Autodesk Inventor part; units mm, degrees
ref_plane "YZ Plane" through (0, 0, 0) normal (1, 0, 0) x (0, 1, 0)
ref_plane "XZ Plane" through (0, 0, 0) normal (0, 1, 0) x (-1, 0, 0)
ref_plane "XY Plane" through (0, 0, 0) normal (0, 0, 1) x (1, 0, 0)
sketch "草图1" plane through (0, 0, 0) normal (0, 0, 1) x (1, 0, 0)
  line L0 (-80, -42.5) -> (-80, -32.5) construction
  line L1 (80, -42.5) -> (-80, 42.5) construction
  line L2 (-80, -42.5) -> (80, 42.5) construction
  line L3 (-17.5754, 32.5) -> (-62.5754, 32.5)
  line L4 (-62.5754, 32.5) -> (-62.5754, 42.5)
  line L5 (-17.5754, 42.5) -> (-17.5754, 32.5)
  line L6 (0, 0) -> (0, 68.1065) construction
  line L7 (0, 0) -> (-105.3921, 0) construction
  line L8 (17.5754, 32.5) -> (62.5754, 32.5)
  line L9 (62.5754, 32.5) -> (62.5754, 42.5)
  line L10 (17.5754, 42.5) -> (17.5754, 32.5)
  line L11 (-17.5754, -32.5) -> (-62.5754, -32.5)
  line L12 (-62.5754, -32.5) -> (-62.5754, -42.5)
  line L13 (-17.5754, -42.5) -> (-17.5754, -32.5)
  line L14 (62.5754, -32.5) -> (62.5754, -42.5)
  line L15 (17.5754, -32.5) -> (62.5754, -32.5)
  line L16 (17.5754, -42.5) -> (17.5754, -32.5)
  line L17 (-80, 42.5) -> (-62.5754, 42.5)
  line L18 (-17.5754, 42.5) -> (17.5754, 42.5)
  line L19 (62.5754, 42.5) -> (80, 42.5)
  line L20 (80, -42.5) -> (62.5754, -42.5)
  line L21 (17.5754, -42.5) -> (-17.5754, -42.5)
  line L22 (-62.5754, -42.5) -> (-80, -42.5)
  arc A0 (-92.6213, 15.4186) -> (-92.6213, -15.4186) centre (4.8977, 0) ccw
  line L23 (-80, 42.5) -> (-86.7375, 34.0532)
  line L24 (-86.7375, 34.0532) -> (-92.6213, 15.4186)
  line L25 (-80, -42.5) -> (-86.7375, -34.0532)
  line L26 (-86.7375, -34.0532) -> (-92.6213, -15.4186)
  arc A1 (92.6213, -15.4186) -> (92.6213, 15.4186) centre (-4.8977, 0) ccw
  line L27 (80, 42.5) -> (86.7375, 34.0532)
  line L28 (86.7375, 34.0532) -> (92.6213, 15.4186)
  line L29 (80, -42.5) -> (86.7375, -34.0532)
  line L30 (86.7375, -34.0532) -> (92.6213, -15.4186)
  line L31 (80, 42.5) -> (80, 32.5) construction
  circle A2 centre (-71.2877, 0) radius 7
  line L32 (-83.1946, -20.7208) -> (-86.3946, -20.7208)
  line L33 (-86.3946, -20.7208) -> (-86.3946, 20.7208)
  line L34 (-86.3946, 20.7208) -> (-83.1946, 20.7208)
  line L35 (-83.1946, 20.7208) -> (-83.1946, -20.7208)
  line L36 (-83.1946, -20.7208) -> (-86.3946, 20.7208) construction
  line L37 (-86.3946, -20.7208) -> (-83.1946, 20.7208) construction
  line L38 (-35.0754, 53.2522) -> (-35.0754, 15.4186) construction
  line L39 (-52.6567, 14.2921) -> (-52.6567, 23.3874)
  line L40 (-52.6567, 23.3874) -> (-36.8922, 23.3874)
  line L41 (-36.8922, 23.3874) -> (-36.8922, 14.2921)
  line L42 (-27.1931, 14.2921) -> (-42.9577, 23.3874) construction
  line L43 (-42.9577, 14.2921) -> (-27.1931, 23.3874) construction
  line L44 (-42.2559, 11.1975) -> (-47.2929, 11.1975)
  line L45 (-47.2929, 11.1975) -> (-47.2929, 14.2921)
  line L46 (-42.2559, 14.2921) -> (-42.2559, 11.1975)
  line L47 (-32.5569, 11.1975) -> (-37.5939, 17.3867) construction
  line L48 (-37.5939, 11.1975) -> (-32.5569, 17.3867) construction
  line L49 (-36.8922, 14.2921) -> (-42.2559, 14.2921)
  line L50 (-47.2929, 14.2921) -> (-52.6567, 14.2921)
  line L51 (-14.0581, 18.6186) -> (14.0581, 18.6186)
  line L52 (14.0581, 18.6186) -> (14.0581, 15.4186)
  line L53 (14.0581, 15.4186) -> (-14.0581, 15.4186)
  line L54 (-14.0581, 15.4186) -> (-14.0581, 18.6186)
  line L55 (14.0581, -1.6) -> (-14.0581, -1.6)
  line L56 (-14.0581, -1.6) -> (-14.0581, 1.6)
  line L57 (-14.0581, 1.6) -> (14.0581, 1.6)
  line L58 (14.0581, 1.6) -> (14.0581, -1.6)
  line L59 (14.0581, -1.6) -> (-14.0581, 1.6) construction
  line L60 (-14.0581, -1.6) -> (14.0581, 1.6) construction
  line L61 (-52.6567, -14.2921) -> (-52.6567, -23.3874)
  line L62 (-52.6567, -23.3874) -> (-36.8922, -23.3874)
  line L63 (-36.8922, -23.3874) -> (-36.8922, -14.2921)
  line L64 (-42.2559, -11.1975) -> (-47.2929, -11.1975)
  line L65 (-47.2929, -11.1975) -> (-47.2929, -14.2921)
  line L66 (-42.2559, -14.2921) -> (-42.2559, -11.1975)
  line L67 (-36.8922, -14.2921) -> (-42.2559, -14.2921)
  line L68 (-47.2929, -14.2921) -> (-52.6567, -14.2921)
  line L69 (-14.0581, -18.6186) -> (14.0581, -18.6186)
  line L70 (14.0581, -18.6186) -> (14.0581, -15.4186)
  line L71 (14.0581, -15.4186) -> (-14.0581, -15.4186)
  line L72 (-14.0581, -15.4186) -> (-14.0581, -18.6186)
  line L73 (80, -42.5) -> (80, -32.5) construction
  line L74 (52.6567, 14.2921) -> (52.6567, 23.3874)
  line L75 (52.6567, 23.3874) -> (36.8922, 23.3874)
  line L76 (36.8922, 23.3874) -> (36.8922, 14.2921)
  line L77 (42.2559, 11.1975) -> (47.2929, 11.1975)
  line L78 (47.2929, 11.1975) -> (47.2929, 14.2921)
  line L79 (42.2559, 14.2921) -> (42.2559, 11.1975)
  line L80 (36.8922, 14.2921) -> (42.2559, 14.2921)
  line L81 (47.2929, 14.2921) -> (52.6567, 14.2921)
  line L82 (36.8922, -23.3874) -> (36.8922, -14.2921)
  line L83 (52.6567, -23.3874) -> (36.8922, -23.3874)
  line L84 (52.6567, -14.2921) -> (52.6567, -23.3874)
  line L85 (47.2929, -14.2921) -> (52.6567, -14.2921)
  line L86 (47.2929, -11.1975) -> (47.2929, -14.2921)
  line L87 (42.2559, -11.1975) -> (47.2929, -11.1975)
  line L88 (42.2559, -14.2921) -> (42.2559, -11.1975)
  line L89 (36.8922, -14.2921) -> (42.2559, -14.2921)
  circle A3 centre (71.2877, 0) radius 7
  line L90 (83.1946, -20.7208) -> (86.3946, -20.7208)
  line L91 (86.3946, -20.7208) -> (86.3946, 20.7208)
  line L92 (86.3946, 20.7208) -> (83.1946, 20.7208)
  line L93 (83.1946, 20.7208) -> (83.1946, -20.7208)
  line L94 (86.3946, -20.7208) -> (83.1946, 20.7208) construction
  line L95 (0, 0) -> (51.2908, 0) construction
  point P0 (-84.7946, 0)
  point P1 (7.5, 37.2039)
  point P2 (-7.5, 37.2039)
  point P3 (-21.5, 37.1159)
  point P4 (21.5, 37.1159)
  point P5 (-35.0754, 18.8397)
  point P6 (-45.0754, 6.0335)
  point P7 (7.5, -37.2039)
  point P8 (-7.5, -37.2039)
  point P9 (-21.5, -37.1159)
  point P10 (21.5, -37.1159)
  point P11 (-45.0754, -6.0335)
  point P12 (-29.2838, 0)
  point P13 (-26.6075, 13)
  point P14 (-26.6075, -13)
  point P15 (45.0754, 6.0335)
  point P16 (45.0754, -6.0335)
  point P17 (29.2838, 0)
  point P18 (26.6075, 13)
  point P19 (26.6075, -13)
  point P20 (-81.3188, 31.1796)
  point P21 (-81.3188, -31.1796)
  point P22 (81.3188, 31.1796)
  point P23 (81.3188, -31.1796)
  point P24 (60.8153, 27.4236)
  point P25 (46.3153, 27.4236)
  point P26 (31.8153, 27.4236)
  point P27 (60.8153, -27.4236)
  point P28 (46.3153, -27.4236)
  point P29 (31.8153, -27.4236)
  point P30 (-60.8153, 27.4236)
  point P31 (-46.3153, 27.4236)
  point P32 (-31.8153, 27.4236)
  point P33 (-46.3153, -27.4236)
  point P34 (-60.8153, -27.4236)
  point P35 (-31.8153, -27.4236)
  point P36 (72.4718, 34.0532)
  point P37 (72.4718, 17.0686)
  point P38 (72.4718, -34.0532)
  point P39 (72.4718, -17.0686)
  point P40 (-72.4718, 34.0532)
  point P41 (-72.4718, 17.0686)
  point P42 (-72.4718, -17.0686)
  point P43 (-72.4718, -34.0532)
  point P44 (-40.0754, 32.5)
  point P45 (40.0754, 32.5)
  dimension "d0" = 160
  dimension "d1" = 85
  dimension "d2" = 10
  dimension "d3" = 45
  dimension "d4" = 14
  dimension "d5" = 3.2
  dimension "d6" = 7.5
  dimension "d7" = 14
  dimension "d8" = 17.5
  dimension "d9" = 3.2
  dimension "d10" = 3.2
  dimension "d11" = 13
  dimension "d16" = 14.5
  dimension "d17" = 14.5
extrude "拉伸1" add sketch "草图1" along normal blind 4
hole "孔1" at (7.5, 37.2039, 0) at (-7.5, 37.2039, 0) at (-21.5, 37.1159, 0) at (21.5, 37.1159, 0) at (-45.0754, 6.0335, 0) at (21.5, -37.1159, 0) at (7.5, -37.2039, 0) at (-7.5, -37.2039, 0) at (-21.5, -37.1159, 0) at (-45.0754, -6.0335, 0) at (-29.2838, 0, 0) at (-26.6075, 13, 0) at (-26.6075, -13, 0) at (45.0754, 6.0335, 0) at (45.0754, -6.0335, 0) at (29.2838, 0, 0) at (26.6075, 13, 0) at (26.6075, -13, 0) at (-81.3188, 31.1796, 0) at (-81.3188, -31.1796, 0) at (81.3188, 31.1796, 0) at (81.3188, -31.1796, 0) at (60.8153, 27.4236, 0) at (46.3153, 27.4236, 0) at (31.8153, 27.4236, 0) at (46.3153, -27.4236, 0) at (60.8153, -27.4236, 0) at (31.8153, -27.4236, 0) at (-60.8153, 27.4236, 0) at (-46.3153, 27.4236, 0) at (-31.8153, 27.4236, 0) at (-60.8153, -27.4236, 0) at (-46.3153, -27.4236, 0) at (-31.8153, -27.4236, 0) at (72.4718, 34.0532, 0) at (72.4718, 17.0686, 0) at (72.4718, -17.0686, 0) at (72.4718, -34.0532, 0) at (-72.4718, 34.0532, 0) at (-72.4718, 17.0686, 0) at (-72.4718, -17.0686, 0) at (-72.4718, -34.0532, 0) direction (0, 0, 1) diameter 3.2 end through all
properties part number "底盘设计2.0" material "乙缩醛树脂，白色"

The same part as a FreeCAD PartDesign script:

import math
import FreeCAD as App
import Part
import Sketcher


def add_polygon(sketch, points):
    """Adds a closed chain of lines whose ends are joined by coincident constraints."""
    first, n = sketch.GeometryCount, len(points)
    for a, b in zip(points, points[1:] + points[:1]):
        sketch.addGeometry(Part.LineSegment(App.Vector(*a, 0), App.Vector(*b, 0)), False)
    for i in range(n):
        sketch.addConstraint(Sketcher.Constraint("Coincident", first + i, 2, first + (i + 1) % n, 1))

doc = App.newDocument("Part")
body = doc.addObject("PartDesign::Body", "Body")

sketch1 = doc.addObject("Sketcher::SketchObject", "Sketch")
body.addObject(sketch1)
sketch1.AttachmentSupport = (doc.XY_Plane, [""])
sketch1.MapMode = "FlatFace"
sketch1.addGeometry(Part.LineSegment(App.Vector(-17.6, 42.5, 0), App.Vector(-17.6, 32.5, 0)), False)
sketch1.addGeometry(Part.LineSegment(App.Vector(-17.6, 32.5, 0), App.Vector(-62.6, 32.5, 0)), False)
sketch1.addGeometry(Part.LineSegment(App.Vector(-62.6, 32.5, 0), App.Vector(-62.6, 42.5, 0)), False)
sketch1.addGeometry(Part.LineSegment(App.Vector(-62.6, 42.5, 0), App.Vector(-80, 42.5, 0)), False)
sketch1.addGeometry(Part.LineSegment(App.Vector(-80, 42.5, 0), App.Vector(-86.7, 34.1, 0)), False)
sketch1.addGeometry(Part.LineSegment(App.Vector(-86.7, 34.1, 0), App.Vector(-92.6, 15.4, 0)), False)
sketch1.addGeometry(Part.ArcOfCircle(Part.Circle(App.Vector(4.9, 0, 0), App.Vector(0, 0, 1), 98.7), math.radians(171.02), math.radians(188.98)), False)
sketch1.addGeometry(Part.LineSegment(App.Vector(-92.6, -15.4, 0), App.Vector(-86.7, -34.1, 0)), False)
sketch1.addGeometry(Part.LineSegment(App.Vector(-86.7, -34.1, 0), App.Vector(-80, -42.5, 0)), False)
sketch1.addGeometry(Part.LineSegment(App.Vector(-80, -42.5, 0), App.Vector(-62.6, -42.5, 0)), False)
sketch1.addGeometry(Part.LineSegment(App.Vector(-62.6, -42.5, 0), App.Vector(-62.6, -32.5, 0)), False)
sketch1.addGeometry(Part.LineSegment(App.Vector(-62.6, -32.5, 0), App.Vector(-17.6, -32.5, 0)), False)
sketch1.addGeometry(Part.LineSegment(App.Vector(-17.6, -32.5, 0), App.Vector(-17.6, -42.5, 0)), False)
sketch1.addGeometry(Part.LineSegment(App.Vector(-17.6, -42.5, 0), App.Vector(17.6, -42.5, 0)), False)
sketch1.addGeometry(Part.LineSegment(App.Vector(17.6, -42.5, 0), App.Vector(17.6, -32.5, 0)), False)
sketch1.addGeometry(Part.LineSegment(App.Vector(17.6, -32.5, 0), App.Vector(62.6, -32.5, 0)), False)
sketch1.addGeometry(Part.LineSegment(App.Vector(62.6, -32.5, 0), App.Vector(62.6, -42.5, 0)), False)
sketch1.addGeometry(Part.LineSegment(App.Vector(62.6, -42.5, 0), App.Vector(80, -42.5, 0)), False)
sketch1.addGeometry(Part.LineSegment(App.Vector(80, -42.5, 0), App.Vector(86.7, -34.1, 0)), False)
sketch1.addGeometry(Part.LineSegment(App.Vector(86.7, -34.1, 0), App.Vector(92.6, -15.4, 0)), False)
sketch1.addGeometry(Part.ArcOfCircle(Part.Circle(App.Vector(-4.9, 0, 0), App.Vector(0, 0, 1), 98.7), math.radians(-8.98), math.radians(8.98)), False)
sketch1.addGeometry(Part.LineSegment(App.Vector(92.6, 15.4, 0), App.Vector(86.7, 34.1, 0)), False)
sketch1.addGeometry(Part.LineSegment(App.Vector(86.7, 34.1, 0), App.Vector(80, 42.5, 0)), False)
sketch1.addGeometry(Part.LineSegment(App.Vector(80, 42.5, 0), App.Vector(62.6, 42.5, 0)), False)
sketch1.addGeometry(Part.LineSegment(App.Vector(62.6, 42.5, 0), App.Vector(62.6, 32.5, 0)), False)
sketch1.addGeometry(Part.LineSegment(App.Vector(62.6, 32.5, 0), App.Vector(17.6, 32.5, 0)), False)
sketch1.addGeometry(Part.LineSegment(App.Vector(17.6, 32.5, 0), App.Vector(17.6, 42.5, 0)), False)
sketch1.addGeometry(Part.LineSegment(App.Vector(17.6, 42.5, 0), App.Vector(-17.6, 42.5, 0)), False)
add_polygon(sketch1, [(-52.7, -23.4), (-52.7, -14.3), (-47.3, -14.3), (-47.3, -11.2), (-42.3, -11.2), (-42.3, -14.3), (-36.9, -14.3), (-36.9, -23.4)])
add_polygon(sketch1, [(14.1, -18.6), (-14.1, -18.6), (-14.1, -15.4), (14.1, -15.4)])
add_polygon(sketch1, [(52.7, -23.4), (36.9, -23.4), (36.9, -14.3), (42.3, -14.3), (42.3, -11.2), (47.3, -11.2), (47.3, -14.3), (52.7, -14.3)])
add_polygon(sketch1, [(-83.2, 20.7), (-83.2, -20.7), (-86.4, -20.7), (-86.4, 20.7)])
sketch1.addGeometry(Part.Circle(App.Vector(-71.3, 0, 0), App.Vector(0, 0, 1), 7), False)
add_polygon(sketch1, [(-47.3, 14.3), (-52.7, 14.3), (-52.7, 23.4), (-36.9, 23.4), (-36.9, 14.3), (-42.3, 14.3), (-42.3, 11.2), (-47.3, 11.2)])
add_polygon(sketch1, [(14.1, 1.6), (14.1, -1.6), (-14.1, -1.6), (-14.1, 1.6)])
add_polygon(sketch1, [(-14.1, 15.4), (-14.1, 18.6), (14.1, 18.6), (14.1, 15.4)])
add_polygon(sketch1, [(52.7, 23.4), (52.7, 14.3), (47.3, 14.3), (47.3, 11.2), (42.3, 11.2), (42.3, 14.3), (36.9, 14.3), (36.9, 23.4)])
sketch1.addGeometry(Part.Circle(App.Vector(71.3, 0, 0), App.Vector(0, 0, 1), 7), False)
add_polygon(sketch1, [(86.4, -20.7), (83.2, -20.7), (83.2, 20.7), (86.4, 20.7)])
sketch1.addConstraint(Sketcher.Constraint("Coincident", 0, 2, 1, 1))
sketch1.addConstraint(Sketcher.Constraint("Coincident", 1, 2, 2, 1))
sketch1.addConstraint(Sketcher.Constraint("Coincident", 2, 2, 3, 1))
sketch1.addConstraint(Sketcher.Constraint("Coincident", 3, 2, 4, 1))
sketch1.addConstraint(Sketcher.Constraint("Coincident", 4, 2, 5, 1))
sketch1.addConstraint(Sketcher.Constraint("Coincident", 5, 2, 6, 1))
sketch1.addConstraint(Sketcher.Constraint("Coincident", 6, 2, 7, 1))
sketch1.addConstraint(Sketcher.Constraint("Coincident", 7, 2, 8, 1))
sketch1.addConstraint(Sketcher.Constraint("Coincident", 8, 2, 9, 1))
sketch1.addConstraint(Sketcher.Constraint("Coincident", 9, 2, 10, 1))
sketch1.addConstraint(Sketcher.Constraint("Coincident", 10, 2, 11, 1))
sketch1.addConstraint(Sketcher.Constraint("Coincident", 11, 2, 12, 1))
sketch1.addConstraint(Sketcher.Constraint("Coincident", 12, 2, 13, 1))
sketch1.addConstraint(Sketcher.Constraint("Coincident", 13, 2, 14, 1))
sketch1.addConstraint(Sketcher.Constraint("Coincident", 14, 2, 15, 1))
sketch1.addConstraint(Sketcher.Constraint("Coincident", 15, 2, 16, 1))
sketch1.addConstraint(Sketcher.Constraint("Coincident", 16, 2, 17, 1))
sketch1.addConstraint(Sketcher.Constraint("Coincident", 17, 2, 18, 1))
sketch1.addConstraint(Sketcher.Constraint("Coincident", 18, 2, 19, 1))
sketch1.addConstraint(Sketcher.Constraint("Coincident", 19, 2, 20, 1))
sketch1.addConstraint(Sketcher.Constraint("Coincident", 20, 2, 21, 1))
sketch1.addConstraint(Sketcher.Constraint("Coincident", 21, 2, 22, 1))
sketch1.addConstraint(Sketcher.Constraint("Coincident", 22, 2, 23, 1))
sketch1.addConstraint(Sketcher.Constraint("Coincident", 23, 2, 24, 1))
sketch1.addConstraint(Sketcher.Constraint("Coincident", 24, 2, 25, 1))
sketch1.addConstraint(Sketcher.Constraint("Coincident", 25, 2, 26, 1))
sketch1.addConstraint(Sketcher.Constraint("Coincident", 26, 2, 27, 1))
sketch1.addConstraint(Sketcher.Constraint("Coincident", 27, 2, 0, 1))
sketch1.addConstraint(Sketcher.Constraint("Vertical", 0))
sketch1.addConstraint(Sketcher.Constraint("Horizontal", 1))
sketch1.addConstraint(Sketcher.Constraint("Vertical", 2))
sketch1.addConstraint(Sketcher.Constraint("Horizontal", 3))
sketch1.addConstraint(Sketcher.Constraint("Horizontal", 9))
sketch1.addConstraint(Sketcher.Constraint("Vertical", 10))
sketch1.addConstraint(Sketcher.Constraint("Horizontal", 11))
sketch1.addConstraint(Sketcher.Constraint("Vertical", 12))
sketch1.addConstraint(Sketcher.Constraint("Horizontal", 13))
sketch1.addConstraint(Sketcher.Constraint("Vertical", 14))
sketch1.addConstraint(Sketcher.Constraint("Horizontal", 15))
sketch1.addConstraint(Sketcher.Constraint("Vertical", 16))
sketch1.addConstraint(Sketcher.Constraint("Horizontal", 17))
sketch1.addConstraint(Sketcher.Constraint("Horizontal", 23))
sketch1.addConstraint(Sketcher.Constraint("Vertical", 24))
sketch1.addConstraint(Sketcher.Constraint("Horizontal", 25))
sketch1.addConstraint(Sketcher.Constraint("Vertical", 26))
sketch1.addConstraint(Sketcher.Constraint("Horizontal", 27))
sketch1.addConstraint(Sketcher.Constraint("Vertical", 28))
sketch1.addConstraint(Sketcher.Constraint("Horizontal", 29))
sketch1.addConstraint(Sketcher.Constraint("Vertical", 30))
sketch1.addConstraint(Sketcher.Constraint("Horizontal", 31))
sketch1.addConstraint(Sketcher.Constraint("Vertical", 32))
sketch1.addConstraint(Sketcher.Constraint("Horizontal", 33))
sketch1.addConstraint(Sketcher.Constraint("Vertical", 34))
sketch1.addConstraint(Sketcher.Constraint("Horizontal", 35))
sketch1.addConstraint(Sketcher.Constraint("Horizontal", 36))
sketch1.addConstraint(Sketcher.Constraint("Vertical", 37))
sketch1.addConstraint(Sketcher.Constraint("Horizontal", 38))
sketch1.addConstraint(Sketcher.Constraint("Vertical", 39))
sketch1.addConstraint(Sketcher.Constraint("Horizontal", 40))
sketch1.addConstraint(Sketcher.Constraint("Vertical", 41))
sketch1.addConstraint(Sketcher.Constraint("Horizontal", 42))
sketch1.addConstraint(Sketcher.Constraint("Vertical", 43))
sketch1.addConstraint(Sketcher.Constraint("Horizontal", 44))
sketch1.addConstraint(Sketcher.Constraint("Vertical", 45))
sketch1.addConstraint(Sketcher.Constraint("Horizontal", 46))
sketch1.addConstraint(Sketcher.Constraint("Vertical", 47))
sketch1.addConstraint(Sketcher.Constraint("Vertical", 48))
sketch1.addConstraint(Sketcher.Constraint("Horizontal", 49))
sketch1.addConstraint(Sketcher.Constraint("Vertical", 50))
sketch1.addConstraint(Sketcher.Constraint("Horizontal", 51))
sketch1.addConstraint(Sketcher.Constraint("Horizontal", 53))
sketch1.addConstraint(Sketcher.Constraint("Vertical", 54))
sketch1.addConstraint(Sketcher.Constraint("Horizontal", 55))
sketch1.addConstraint(Sketcher.Constraint("Vertical", 56))
sketch1.addConstraint(Sketcher.Constraint("Horizontal", 57))
sketch1.addConstraint(Sketcher.Constraint("Vertical", 58))
sketch1.addConstraint(Sketcher.Constraint("Horizontal", 59))
sketch1.addConstraint(Sketcher.Constraint("Vertical", 60))
sketch1.addConstraint(Sketcher.Constraint("Vertical", 61))
sketch1.addConstraint(Sketcher.Constraint("Horizontal", 62))
sketch1.addConstraint(Sketcher.Constraint("Vertical", 63))
sketch1.addConstraint(Sketcher.Constraint("Horizontal", 64))
sketch1.addConstraint(Sketcher.Constraint("Vertical", 65))
sketch1.addConstraint(Sketcher.Constraint("Horizontal", 66))
sketch1.addConstraint(Sketcher.Constraint("Vertical", 67))
sketch1.addConstraint(Sketcher.Constraint("Horizontal", 68))
sketch1.addConstraint(Sketcher.Constraint("Vertical", 69))
sketch1.addConstraint(Sketcher.Constraint("Horizontal", 70))
sketch1.addConstraint(Sketcher.Constraint("Vertical", 71))
sketch1.addConstraint(Sketcher.Constraint("Horizontal", 72))
sketch1.addConstraint(Sketcher.Constraint("Vertical", 73))
sketch1.addConstraint(Sketcher.Constraint("Horizontal", 74))
sketch1.addConstraint(Sketcher.Constraint("Vertical", 75))
sketch1.addConstraint(Sketcher.Constraint("Horizontal", 76))
sketch1.addConstraint(Sketcher.Constraint("Horizontal", 78))
sketch1.addConstraint(Sketcher.Constraint("Vertical", 79))
sketch1.addConstraint(Sketcher.Constraint("Horizontal", 80))
sketch1.addConstraint(Sketcher.Constraint("Vertical", 81))
sketch1.addConstraint(Sketcher.Constraint("Equal", 6, 20))
sketch1.addConstraint(Sketcher.Constraint("Equal", 52, 77))
sketch1.addConstraint(Sketcher.Constraint("Symmetric", 6, 3, 20, 3, -1, 1))
sketch1.addConstraint(Sketcher.Constraint("Symmetric", 52, 3, 77, 3, -1, 1))
sketch1.addConstraint(Sketcher.Constraint("Symmetric", 0, 2, 14, 2, -1, 1))
sketch1.addConstraint(Sketcher.Constraint("Symmetric", 2, 2, 16, 2, -1, 1))
sketch1.addConstraint(Sketcher.Constraint("Symmetric", 4, 2, 18, 2, -1, 1))
sketch1.addConstraint(Sketcher.Constraint("Symmetric", 7, 2, 21, 2, -1, 1))
sketch1.addConstraint(Sketcher.Constraint("Symmetric", 8, 2, 22, 2, -1, 1))
sketch1.addConstraint(Sketcher.Constraint("Symmetric", 10, 2, 24, 2, -1, 1))
sketch1.addConstraint(Sketcher.Constraint("Symmetric", 12, 2, 26, 2, -1, 1))
sketch1.addConstraint(Sketcher.Constraint("Symmetric", 46, 2, 53, 2, -1, 1))
sketch1.addConstraint(Sketcher.Constraint("Symmetric", 40, 2, 55, 2, -1, 1))
sketch1.addConstraint(Sketcher.Constraint("Symmetric", 42, 2, 57, 2, -1, 1))
sketch1.addConstraint(Sketcher.Constraint("Symmetric", 44, 2, 59, 2, -1, 1))
sketch1.addConstraint(Sketcher.Constraint("Symmetric", 61, 2, 63, 2, -1, 1))
sketch1.addConstraint(Sketcher.Constraint("Symmetric", 39, 2, 65, 2, -1, 1))
sketch1.addConstraint(Sketcher.Constraint("Symmetric", 37, 2, 67, 2, -1, 1))
sketch1.addConstraint(Sketcher.Constraint("Symmetric", 28, 2, 69, 2, -1, 1))
sketch1.addConstraint(Sketcher.Constraint("Symmetric", 30, 2, 71, 2, -1, 1))
sketch1.addConstraint(Sketcher.Constraint("Symmetric", 32, 2, 73, 2, -1, 1))
sketch1.addConstraint(Sketcher.Constraint("Symmetric", 34, 2, 75, 2, -1, 1))
sketch1.addConstraint(Sketcher.Constraint("Symmetric", 51, 2, 78, 2, -1, 1))
sketch1.addConstraint(Sketcher.Constraint("Symmetric", 49, 2, 80, 2, -1, 1))
sketch1.addConstraint(Sketcher.Constraint("Symmetric", 11, 2, 14, 2, -2))
sketch1.addConstraint(Sketcher.Constraint("Symmetric", 9, 2, 16, 2, -2))
sketch1.addConstraint(Sketcher.Constraint("Symmetric", 7, 2, 18, 2, -2))
sketch1.addConstraint(Sketcher.Constraint("Symmetric", 6, 2, 19, 2, -2))
sketch1.addConstraint(Sketcher.Constraint("Symmetric", 34, 2, 40, 2, -2))
sketch1.addConstraint(Sketcher.Constraint("Symmetric", 32, 2, 42, 2, -2))
sketch1.addConstraint(Sketcher.Constraint("Symmetric", 30, 2, 44, 2, -2))
sketch1.addConstraint(Sketcher.Constraint("Symmetric", 28, 2, 46, 2, -2))
sketch1.addConstraint(Sketcher.Constraint("PointOnObject", 52, 3, -1))
sketch1.addConstraint(Sketcher.Constraint("Parallel", 4, 18))
sketch1.addConstraint(Sketcher.Constraint("Parallel", 5, 19))
sketch1.addConstraint(Sketcher.Constraint("Parallel", 7, 21))
sketch1.addConstraint(Sketcher.Constraint("Horizontal", 9, 2, 12, 2))
sketch1.addConstraint(Sketcher.Constraint("Horizontal", 29, 2, 32, 2))
sketch1.addConstraint(Sketcher.Constraint("Horizontal", 19, 2, 37, 2))
sketch1.addConstraint(Sketcher.Constraint("Horizontal", 49, 2, 78, 2))
sketch1.addConstraint(Sketcher.Constraint("Vertical", 3, 2, 8, 2))
sketch1.addConstraint(Sketcher.Constraint("Vertical", 39, 2, 61, 2))
sketch1.addConstraint(Sketcher.Constraint("Vertical", 37, 2, 62, 2))
sketch1.addConstraint(Sketcher.Constraint("Equal", 29, 33))
sketch1.addConstraint(Sketcher.Constraint("Equal", 80, 37))
sketch1.addConstraint(Sketcher.Constraint("Equal", 39, 61))
sketch1.addConstraint(Sketcher.Constraint("Diameter", 52, 14.0))
sketch1.addConstraint(Sketcher.Constraint("DistanceX", 1, 2, 1, 1, 45.0))
sketch1.addConstraint(Sketcher.Constraint("DistanceY", 0, 2, 0, 1, 10.0))
sketch1.addConstraint(Sketcher.Constraint("DistanceX", 49, 2, 49, 1, 3.2))
sketch1.addConstraint(Sketcher.Constraint("DistanceX", 3, 2, -1, 1, 80.0))
sketch1.addConstraint(Sketcher.Constraint("DistanceY", -1, 1, 0, 2, 32.5))
sketch1.addConstraint(Sketcher.Constraint("Radius", 6, 98.7304))
sketch1.addConstraint(Sketcher.Constraint("DistanceX", 31, 1, 31, 2, 5.037))
sketch1.addConstraint(Sketcher.Constraint("DistanceX", 3, 2, 3, 1, 17.4246))
sketch1.addConstraint(Sketcher.Constraint("DistanceX", 29, 1, 29, 2, 5.3638))
sketch1.addConstraint(Sketcher.Constraint("DistanceX", 36, 2, 36, 1, 28.1162))
sketch1.addConstraint(Sketcher.Constraint("DistanceY", 28, 1, 28, 2, 9.0953))
sketch1.addConstraint(Sketcher.Constraint("DistanceY", 30, 1, 30, 2, 3.0946))
sketch1.addConstraint(Sketcher.Constraint("DistanceY", 48, 2, 48, 1, 41.4416))
sketch1.addConstraint(Sketcher.Constraint("DistanceY", 28, 2, -1, 1, 14.292))
sketch1.addConstraint(Sketcher.Constraint("DistanceX", 29, 2, -1, 1, 47.293))
sketch1.addConstraint(Sketcher.Constraint("Distance", 4, 10.8047))
sketch1.addConstraint(Sketcher.Constraint("Distance", 5, 19.5414))
sketch1.addConstraint(Sketcher.Constraint("DistanceX", -1, 1, 6, 3, 4.8977))
sketch1.addConstraint(Sketcher.Constraint("DistanceX", 52, 3, -1, 1, 71.2877))
sketch1.addConstraint(Sketcher.Constraint("DistanceX", 4, 2, -1, 1, 86.7375))
sketch1.addConstraint(Sketcher.Constraint("DistanceX", 48, 2, -1, 1, 83.1946))
pad1 = doc.addObject("PartDesign::Pad", "Pad")
body.addObject(pad1)
pad1.Profile = sketch1
pad1.Length = 4

sketch2 = doc.addObject("Sketcher::SketchObject", "Sketch001")
body.addObject(sketch2)
sketch2.AttachmentSupport = (doc.XY_Plane, [""])
sketch2.MapMode = "FlatFace"
sketch2.addGeometry(Part.Circle(App.Vector(7.5, 37.2, 0), App.Vector(0, 0, 1), 1.6), False)
sketch2.addGeometry(Part.Circle(App.Vector(-7.5, 37.2, 0), App.Vector(0, 0, 1), 1.6), False)
sketch2.addGeometry(Part.Circle(App.Vector(-21.5, 37.1, 0), App.Vector(0, 0, 1), 1.6), False)
sketch2.addGeometry(Part.Circle(App.Vector(21.5, 37.1, 0), App.Vector(0, 0, 1), 1.6), False)
sketch2.addGeometry(Part.Circle(App.Vector(-45.1, 6, 0), App.Vector(0, 0, 1), 1.6), False)
sketch2.addGeometry(Part.Circle(App.Vector(21.5, -37.1, 0), App.Vector(0, 0, 1), 1.6), False)
sketch2.addGeometry(Part.Circle(App.Vector(7.5, -37.2, 0), App.Vector(0, 0, 1), 1.6), False)
sketch2.addGeometry(Part.Circle(App.Vector(-7.5, -37.2, 0), App.Vector(0, 0, 1), 1.6), False)
sketch2.addGeometry(Part.Circle(App.Vector(-21.5, -37.1, 0), App.Vector(0, 0, 1), 1.6), False)
sketch2.addGeometry(Part.Circle(App.Vector(-45.1, -6, 0), App.Vector(0, 0, 1), 1.6), False)
sketch2.addGeometry(Part.Circle(App.Vector(-29.3, 0, 0), App.Vector(0, 0, 1), 1.6), False)
sketch2.addGeometry(Part.Circle(App.Vector(-26.6, 13, 0), App.Vector(0, 0, 1), 1.6), False)
sketch2.addGeometry(Part.Circle(App.Vector(-26.6, -13, 0), App.Vector(0, 0, 1), 1.6), False)
sketch2.addGeometry(Part.Circle(App.Vector(45.1, 6, 0), App.Vector(0, 0, 1), 1.6), False)
sketch2.addGeometry(Part.Circle(App.Vector(45.1, -6, 0), App.Vector(0, 0, 1), 1.6), False)
sketch2.addGeometry(Part.Circle(App.Vector(29.3, 0, 0), App.Vector(0, 0, 1), 1.6), False)
sketch2.addGeometry(Part.Circle(App.Vector(26.6, 13, 0), App.Vector(0, 0, 1), 1.6), False)
sketch2.addGeometry(Part.Circle(App.Vector(26.6, -13, 0), App.Vector(0, 0, 1), 1.6), False)
sketch2.addGeometry(Part.Circle(App.Vector(-81.3, 31.2, 0), App.Vector(0, 0, 1), 1.6), False)
sketch2.addGeometry(Part.Circle(App.Vector(-81.3, -31.2, 0), App.Vector(0, 0, 1), 1.6), False)
sketch2.addGeometry(Part.Circle(App.Vector(81.3, 31.2, 0), App.Vector(0, 0, 1), 1.6), False)
sketch2.addGeometry(Part.Circle(App.Vector(81.3, -31.2, 0), App.Vector(0, 0, 1), 1.6), False)
sketch2.addGeometry(Part.Circle(App.Vector(60.8, 27.4, 0), App.Vector(0, 0, 1), 1.6), False)
sketch2.addGeometry(Part.Circle(App.Vector(46.3, 27.4, 0), App.Vector(0, 0, 1), 1.6), False)
sketch2.addGeometry(Part.Circle(App.Vector(31.8, 27.4, 0), App.Vector(0, 0, 1), 1.6), False)
sketch2.addGeometry(Part.Circle(App.Vector(46.3, -27.4, 0), App.Vector(0, 0, 1), 1.6), False)
sketch2.addGeometry(Part.Circle(App.Vector(60.8, -27.4, 0), App.Vector(0, 0, 1), 1.6), False)
sketch2.addGeometry(Part.Circle(App.Vector(31.8, -27.4, 0), App.Vector(0, 0, 1), 1.6), False)
sketch2.addGeometry(Part.Circle(App.Vector(-60.8, 27.4, 0), App.Vector(0, 0, 1), 1.6), False)
sketch2.addGeometry(Part.Circle(App.Vector(-46.3, 27.4, 0), App.Vector(0, 0, 1), 1.6), False)
sketch2.addGeometry(Part.Circle(App.Vector(-31.8, 27.4, 0), App.Vector(0, 0, 1), 1.6), False)
sketch2.addGeometry(Part.Circle(App.Vector(-60.8, -27.4, 0), App.Vector(0, 0, 1), 1.6), False)
sketch2.addGeometry(Part.Circle(App.Vector(-46.3, -27.4, 0), App.Vector(0, 0, 1), 1.6), False)
sketch2.addGeometry(Part.Circle(App.Vector(-31.8, -27.4, 0), App.Vector(0, 0, 1), 1.6), False)
sketch2.addGeometry(Part.Circle(App.Vector(72.5, 34.1, 0), App.Vector(0, 0, 1), 1.6), False)
sketch2.addGeometry(Part.Circle(App.Vector(72.5, 17.1, 0), App.Vector(0, 0, 1), 1.6), False)
sketch2.addGeometry(Part.Circle(App.Vector(72.5, -17.1, 0), App.Vector(0, 0, 1), 1.6), False)
sketch2.addGeometry(Part.Circle(App.Vector(72.5, -34.1, 0), App.Vector(0, 0, 1), 1.6), False)
sketch2.addGeometry(Part.Circle(App.Vector(-72.5, 34.1, 0), App.Vector(0, 0, 1), 1.6), False)
sketch2.addGeometry(Part.Circle(App.Vector(-72.5, 17.1, 0), App.Vector(0, 0, 1), 1.6), False)
sketch2.addGeometry(Part.Circle(App.Vector(-72.5, -17.1, 0), App.Vector(0, 0, 1), 1.6), False)
sketch2.addGeometry(Part.Circle(App.Vector(-72.5, -34.1, 0), App.Vector(0, 0, 1), 1.6), False)
sketch2.addConstraint(Sketcher.Constraint("Equal", 0, 1))
sketch2.addConstraint(Sketcher.Constraint("Equal", 1, 2))
sketch2.addConstraint(Sketcher.Constraint("Equal", 2, 3))
sketch2.addConstraint(Sketcher.Constraint("Equal", 3, 4))
sketch2.addConstraint(Sketcher.Constraint("Equal", 4, 5))
sketch2.addConstraint(Sketcher.Constraint("Equal", 5, 6))
sketch2.addConstraint(Sketcher.Constraint("Equal", 6, 7))
sketch2.addConstraint(Sketcher.Constraint("Equal", 7, 8))
sketch2.addConstraint(Sketcher.Constraint("Equal", 8, 9))
sketch2.addConstraint(Sketcher.Constraint("Equal", 9, 10))
sketch2.addConstraint(Sketcher.Constraint("Equal", 10, 11))
sketch2.addConstraint(Sketcher.Constraint("Equal", 11, 12))
sketch2.addConstraint(Sketcher.Constraint("Equal", 12, 13))
sketch2.addConstraint(Sketcher.Constraint("Equal", 13, 14))
sketch2.addConstraint(Sketcher.Constraint("Equal", 14, 15))
sketch2.addConstraint(Sketcher.Constraint("Equal", 15, 16))
sketch2.addConstraint(Sketcher.Constraint("Equal", 16, 17))
sketch2.addConstraint(Sketcher.Constraint("Equal", 17, 18))
sketch2.addConstraint(Sketcher.Constraint("Equal", 18, 19))
sketch2.addConstraint(Sketcher.Constraint("Equal", 19, 20))
sketch2.addConstraint(Sketcher.Constraint("Equal", 20, 21))
sketch2.addConstraint(Sketcher.Constraint("Equal", 21, 22))
sketch2.addConstraint(Sketcher.Constraint("Equal", 22, 23))
sketch2.addConstraint(Sketcher.Constraint("Equal", 23, 24))
sketch2.addConstraint(Sketcher.Constraint("Equal", 24, 25))
sketch2.addConstraint(Sketcher.Constraint("Equal", 25, 26))
sketch2.addConstraint(Sketcher.Constraint("Equal", 26, 27))
sketch2.addConstraint(Sketcher.Constraint("Equal", 27, 28))
sketch2.addConstraint(Sketcher.Constraint("Equal", 28, 29))
sketch2.addConstraint(Sketcher.Constraint("Equal", 29, 30))
sketch2.addConstraint(Sketcher.Constraint("Equal", 30, 31))
sketch2.addConstraint(Sketcher.Constraint("Equal", 31, 32))
sketch2.addConstraint(Sketcher.Constraint("Equal", 32, 33))
sketch2.addConstraint(Sketcher.Constraint("Equal", 33, 34))
sketch2.addConstraint(Sketcher.Constraint("Equal", 34, 35))
sketch2.addConstraint(Sketcher.Constraint("Equal", 35, 36))
sketch2.addConstraint(Sketcher.Constraint("Equal", 36, 37))
sketch2.addConstraint(Sketcher.Constraint("Equal", 37, 38))
sketch2.addConstraint(Sketcher.Constraint("Equal", 38, 39))
sketch2.addConstraint(Sketcher.Constraint("Equal", 39, 40))
sketch2.addConstraint(Sketcher.Constraint("Equal", 40, 41))
sketch2.addConstraint(Sketcher.Constraint("Symmetric", 2, 3, 5, 3, -1, 1))
sketch2.addConstraint(Sketcher.Constraint("Symmetric", 1, 3, 6, 3, -1, 1))
sketch2.addConstraint(Sketcher.Constraint("Symmetric", 0, 3, 7, 3, -1, 1))
sketch2.addConstraint(Sketcher.Constraint("Symmetric", 3, 3, 8, 3, -1, 1))
sketch2.addConstraint(Sketcher.Constraint("Symmetric", 9, 3, 13, 3, -1, 1))
sketch2.addConstraint(Sketcher.Constraint("Symmetric", 4, 3, 14, 3, -1, 1))
sketch2.addConstraint(Sketcher.Constraint("Symmetric", 10, 3, 15, 3, -1, 1))
sketch2.addConstraint(Sketcher.Constraint("Symmetric", 12, 3, 16, 3, -1, 1))
sketch2.addConstraint(Sketcher.Constraint("Symmetric", 11, 3, 17, 3, -1, 1))
sketch2.addConstraint(Sketcher.Constraint("Symmetric", 19, 3, 20, 3, -1, 1))
sketch2.addConstraint(Sketcher.Constraint("Symmetric", 18, 3, 21, 3, -1, 1))
sketch2.addConstraint(Sketcher.Constraint("Symmetric", 26, 3, 28, 3, -1, 1))
sketch2.addConstraint(Sketcher.Constraint("Symmetric", 25, 3, 29, 3, -1, 1))
sketch2.addConstraint(Sketcher.Constraint("Symmetric", 27, 3, 30, 3, -1, 1))
sketch2.addConstraint(Sketcher.Constraint("Symmetric", 22, 3, 31, 3, -1, 1))
sketch2.addConstraint(Sketcher.Constraint("Symmetric", 23, 3, 32, 3, -1, 1))
sketch2.addConstraint(Sketcher.Constraint("Symmetric", 24, 3, 33, 3, -1, 1))
sketch2.addConstraint(Sketcher.Constraint("Symmetric", 37, 3, 38, 3, -1, 1))
sketch2.addConstraint(Sketcher.Constraint("Symmetric", 36, 3, 39, 3, -1, 1))
sketch2.addConstraint(Sketcher.Constraint("Symmetric", 35, 3, 40, 3, -1, 1))
sketch2.addConstraint(Sketcher.Constraint("Symmetric", 34, 3, 41, 3, -1, 1))
sketch2.addConstraint(Sketcher.Constraint("Symmetric", 0, 3, 1, 3, -2))
sketch2.addConstraint(Sketcher.Constraint("Symmetric", 2, 3, 3, 3, -2))
sketch2.addConstraint(Sketcher.Constraint("Symmetric", 4, 3, 13, 3, -2))
sketch2.addConstraint(Sketcher.Constraint("Symmetric", 11, 3, 16, 3, -2))
sketch2.addConstraint(Sketcher.Constraint("Symmetric", 18, 3, 20, 3, -2))
sketch2.addConstraint(Sketcher.Constraint("Symmetric", 22, 3, 28, 3, -2))
sketch2.addConstraint(Sketcher.Constraint("Symmetric", 23, 3, 29, 3, -2))
sketch2.addConstraint(Sketcher.Constraint("Symmetric", 24, 3, 30, 3, -2))
sketch2.addConstraint(Sketcher.Constraint("Symmetric", 34, 3, 38, 3, -2))
sketch2.addConstraint(Sketcher.Constraint("Symmetric", 35, 3, 39, 3, -2))
sketch2.addConstraint(Sketcher.Constraint("PointOnObject", 10, 3, -1))
sketch2.addConstraint(Sketcher.Constraint("Horizontal", 22, 3, 23, 3))
sketch2.addConstraint(Sketcher.Constraint("Horizontal", 23, 3, 24, 3))
sketch2.addConstraint(Sketcher.Constraint("Vertical", 34, 3, 35, 3))
sketch2.addConstraint(Sketcher.Constraint("Diameter", 0, 3.2))
sketch2.addConstraint(Sketcher.Constraint("DistanceY", -1, 1, 11, 3, 13.0))
sketch2.addConstraint(Sketcher.Constraint("DistanceX", 1, 3, 0, 3, 15.0))
sketch2.addConstraint(Sketcher.Constraint("DistanceX", 2, 3, 1, 3, 14.0))
sketch2.addConstraint(Sketcher.Constraint("DistanceX", 23, 3, 22, 3, 14.5))
sketch2.addConstraint(Sketcher.Constraint("DistanceX", 24, 3, 23, 3, 14.5))
sketch2.addConstraint(Sketcher.Constraint("DistanceX", 13, 3, 22, 3, 15.74))
sketch2.addConstraint(Sketcher.Constraint("DistanceY", 13, 3, 22, 3, 21.39))
sketch2.addConstraint(Sketcher.Constraint("DistanceY", -1, 1, 0, 3, 37.204))
sketch2.addConstraint(Sketcher.Constraint("DistanceY", -1, 1, 2, 3, 37.116))
sketch2.addConstraint(Sketcher.Constraint("DistanceY", 9, 3, 4, 3, 12.067))
sketch2.addConstraint(Sketcher.Constraint("DistanceX", 4, 3, 11, 3, 18.468))
sketch2.addConstraint(Sketcher.Constraint("DistanceY", 4, 3, 18, 3, 25.146))
sketch2.addConstraint(Sketcher.Constraint("DistanceX", 18, 3, 10, 3, 52.035))
sketch2.addConstraint(Sketcher.Constraint("DistanceX", 34, 3, 20, 3, 8.847))
sketch2.addConstraint(Sketcher.Constraint("DistanceY", 35, 3, 22, 3, 10.355))
sketch2.addConstraint(Sketcher.Constraint("DistanceX", 4, 3, -1, 1, 45.0754))
sketch2.addConstraint(Sketcher.Constraint("DistanceX", 10, 3, -1, 1, 29.2838))
sketch2.addConstraint(Sketcher.Constraint("DistanceY", -1, 1, 34, 3, 34.0532))
doc.recompute()
hole = doc.addObject("PartDesign::Hole", "Hole")
body.addObject(hole)
hole.Profile = sketch2
hole.ThreadType = "None"
hole.Diameter = 3.2
hole.DepthType = "ThroughAll"
hole.Reversed = True

doc.recompute()
